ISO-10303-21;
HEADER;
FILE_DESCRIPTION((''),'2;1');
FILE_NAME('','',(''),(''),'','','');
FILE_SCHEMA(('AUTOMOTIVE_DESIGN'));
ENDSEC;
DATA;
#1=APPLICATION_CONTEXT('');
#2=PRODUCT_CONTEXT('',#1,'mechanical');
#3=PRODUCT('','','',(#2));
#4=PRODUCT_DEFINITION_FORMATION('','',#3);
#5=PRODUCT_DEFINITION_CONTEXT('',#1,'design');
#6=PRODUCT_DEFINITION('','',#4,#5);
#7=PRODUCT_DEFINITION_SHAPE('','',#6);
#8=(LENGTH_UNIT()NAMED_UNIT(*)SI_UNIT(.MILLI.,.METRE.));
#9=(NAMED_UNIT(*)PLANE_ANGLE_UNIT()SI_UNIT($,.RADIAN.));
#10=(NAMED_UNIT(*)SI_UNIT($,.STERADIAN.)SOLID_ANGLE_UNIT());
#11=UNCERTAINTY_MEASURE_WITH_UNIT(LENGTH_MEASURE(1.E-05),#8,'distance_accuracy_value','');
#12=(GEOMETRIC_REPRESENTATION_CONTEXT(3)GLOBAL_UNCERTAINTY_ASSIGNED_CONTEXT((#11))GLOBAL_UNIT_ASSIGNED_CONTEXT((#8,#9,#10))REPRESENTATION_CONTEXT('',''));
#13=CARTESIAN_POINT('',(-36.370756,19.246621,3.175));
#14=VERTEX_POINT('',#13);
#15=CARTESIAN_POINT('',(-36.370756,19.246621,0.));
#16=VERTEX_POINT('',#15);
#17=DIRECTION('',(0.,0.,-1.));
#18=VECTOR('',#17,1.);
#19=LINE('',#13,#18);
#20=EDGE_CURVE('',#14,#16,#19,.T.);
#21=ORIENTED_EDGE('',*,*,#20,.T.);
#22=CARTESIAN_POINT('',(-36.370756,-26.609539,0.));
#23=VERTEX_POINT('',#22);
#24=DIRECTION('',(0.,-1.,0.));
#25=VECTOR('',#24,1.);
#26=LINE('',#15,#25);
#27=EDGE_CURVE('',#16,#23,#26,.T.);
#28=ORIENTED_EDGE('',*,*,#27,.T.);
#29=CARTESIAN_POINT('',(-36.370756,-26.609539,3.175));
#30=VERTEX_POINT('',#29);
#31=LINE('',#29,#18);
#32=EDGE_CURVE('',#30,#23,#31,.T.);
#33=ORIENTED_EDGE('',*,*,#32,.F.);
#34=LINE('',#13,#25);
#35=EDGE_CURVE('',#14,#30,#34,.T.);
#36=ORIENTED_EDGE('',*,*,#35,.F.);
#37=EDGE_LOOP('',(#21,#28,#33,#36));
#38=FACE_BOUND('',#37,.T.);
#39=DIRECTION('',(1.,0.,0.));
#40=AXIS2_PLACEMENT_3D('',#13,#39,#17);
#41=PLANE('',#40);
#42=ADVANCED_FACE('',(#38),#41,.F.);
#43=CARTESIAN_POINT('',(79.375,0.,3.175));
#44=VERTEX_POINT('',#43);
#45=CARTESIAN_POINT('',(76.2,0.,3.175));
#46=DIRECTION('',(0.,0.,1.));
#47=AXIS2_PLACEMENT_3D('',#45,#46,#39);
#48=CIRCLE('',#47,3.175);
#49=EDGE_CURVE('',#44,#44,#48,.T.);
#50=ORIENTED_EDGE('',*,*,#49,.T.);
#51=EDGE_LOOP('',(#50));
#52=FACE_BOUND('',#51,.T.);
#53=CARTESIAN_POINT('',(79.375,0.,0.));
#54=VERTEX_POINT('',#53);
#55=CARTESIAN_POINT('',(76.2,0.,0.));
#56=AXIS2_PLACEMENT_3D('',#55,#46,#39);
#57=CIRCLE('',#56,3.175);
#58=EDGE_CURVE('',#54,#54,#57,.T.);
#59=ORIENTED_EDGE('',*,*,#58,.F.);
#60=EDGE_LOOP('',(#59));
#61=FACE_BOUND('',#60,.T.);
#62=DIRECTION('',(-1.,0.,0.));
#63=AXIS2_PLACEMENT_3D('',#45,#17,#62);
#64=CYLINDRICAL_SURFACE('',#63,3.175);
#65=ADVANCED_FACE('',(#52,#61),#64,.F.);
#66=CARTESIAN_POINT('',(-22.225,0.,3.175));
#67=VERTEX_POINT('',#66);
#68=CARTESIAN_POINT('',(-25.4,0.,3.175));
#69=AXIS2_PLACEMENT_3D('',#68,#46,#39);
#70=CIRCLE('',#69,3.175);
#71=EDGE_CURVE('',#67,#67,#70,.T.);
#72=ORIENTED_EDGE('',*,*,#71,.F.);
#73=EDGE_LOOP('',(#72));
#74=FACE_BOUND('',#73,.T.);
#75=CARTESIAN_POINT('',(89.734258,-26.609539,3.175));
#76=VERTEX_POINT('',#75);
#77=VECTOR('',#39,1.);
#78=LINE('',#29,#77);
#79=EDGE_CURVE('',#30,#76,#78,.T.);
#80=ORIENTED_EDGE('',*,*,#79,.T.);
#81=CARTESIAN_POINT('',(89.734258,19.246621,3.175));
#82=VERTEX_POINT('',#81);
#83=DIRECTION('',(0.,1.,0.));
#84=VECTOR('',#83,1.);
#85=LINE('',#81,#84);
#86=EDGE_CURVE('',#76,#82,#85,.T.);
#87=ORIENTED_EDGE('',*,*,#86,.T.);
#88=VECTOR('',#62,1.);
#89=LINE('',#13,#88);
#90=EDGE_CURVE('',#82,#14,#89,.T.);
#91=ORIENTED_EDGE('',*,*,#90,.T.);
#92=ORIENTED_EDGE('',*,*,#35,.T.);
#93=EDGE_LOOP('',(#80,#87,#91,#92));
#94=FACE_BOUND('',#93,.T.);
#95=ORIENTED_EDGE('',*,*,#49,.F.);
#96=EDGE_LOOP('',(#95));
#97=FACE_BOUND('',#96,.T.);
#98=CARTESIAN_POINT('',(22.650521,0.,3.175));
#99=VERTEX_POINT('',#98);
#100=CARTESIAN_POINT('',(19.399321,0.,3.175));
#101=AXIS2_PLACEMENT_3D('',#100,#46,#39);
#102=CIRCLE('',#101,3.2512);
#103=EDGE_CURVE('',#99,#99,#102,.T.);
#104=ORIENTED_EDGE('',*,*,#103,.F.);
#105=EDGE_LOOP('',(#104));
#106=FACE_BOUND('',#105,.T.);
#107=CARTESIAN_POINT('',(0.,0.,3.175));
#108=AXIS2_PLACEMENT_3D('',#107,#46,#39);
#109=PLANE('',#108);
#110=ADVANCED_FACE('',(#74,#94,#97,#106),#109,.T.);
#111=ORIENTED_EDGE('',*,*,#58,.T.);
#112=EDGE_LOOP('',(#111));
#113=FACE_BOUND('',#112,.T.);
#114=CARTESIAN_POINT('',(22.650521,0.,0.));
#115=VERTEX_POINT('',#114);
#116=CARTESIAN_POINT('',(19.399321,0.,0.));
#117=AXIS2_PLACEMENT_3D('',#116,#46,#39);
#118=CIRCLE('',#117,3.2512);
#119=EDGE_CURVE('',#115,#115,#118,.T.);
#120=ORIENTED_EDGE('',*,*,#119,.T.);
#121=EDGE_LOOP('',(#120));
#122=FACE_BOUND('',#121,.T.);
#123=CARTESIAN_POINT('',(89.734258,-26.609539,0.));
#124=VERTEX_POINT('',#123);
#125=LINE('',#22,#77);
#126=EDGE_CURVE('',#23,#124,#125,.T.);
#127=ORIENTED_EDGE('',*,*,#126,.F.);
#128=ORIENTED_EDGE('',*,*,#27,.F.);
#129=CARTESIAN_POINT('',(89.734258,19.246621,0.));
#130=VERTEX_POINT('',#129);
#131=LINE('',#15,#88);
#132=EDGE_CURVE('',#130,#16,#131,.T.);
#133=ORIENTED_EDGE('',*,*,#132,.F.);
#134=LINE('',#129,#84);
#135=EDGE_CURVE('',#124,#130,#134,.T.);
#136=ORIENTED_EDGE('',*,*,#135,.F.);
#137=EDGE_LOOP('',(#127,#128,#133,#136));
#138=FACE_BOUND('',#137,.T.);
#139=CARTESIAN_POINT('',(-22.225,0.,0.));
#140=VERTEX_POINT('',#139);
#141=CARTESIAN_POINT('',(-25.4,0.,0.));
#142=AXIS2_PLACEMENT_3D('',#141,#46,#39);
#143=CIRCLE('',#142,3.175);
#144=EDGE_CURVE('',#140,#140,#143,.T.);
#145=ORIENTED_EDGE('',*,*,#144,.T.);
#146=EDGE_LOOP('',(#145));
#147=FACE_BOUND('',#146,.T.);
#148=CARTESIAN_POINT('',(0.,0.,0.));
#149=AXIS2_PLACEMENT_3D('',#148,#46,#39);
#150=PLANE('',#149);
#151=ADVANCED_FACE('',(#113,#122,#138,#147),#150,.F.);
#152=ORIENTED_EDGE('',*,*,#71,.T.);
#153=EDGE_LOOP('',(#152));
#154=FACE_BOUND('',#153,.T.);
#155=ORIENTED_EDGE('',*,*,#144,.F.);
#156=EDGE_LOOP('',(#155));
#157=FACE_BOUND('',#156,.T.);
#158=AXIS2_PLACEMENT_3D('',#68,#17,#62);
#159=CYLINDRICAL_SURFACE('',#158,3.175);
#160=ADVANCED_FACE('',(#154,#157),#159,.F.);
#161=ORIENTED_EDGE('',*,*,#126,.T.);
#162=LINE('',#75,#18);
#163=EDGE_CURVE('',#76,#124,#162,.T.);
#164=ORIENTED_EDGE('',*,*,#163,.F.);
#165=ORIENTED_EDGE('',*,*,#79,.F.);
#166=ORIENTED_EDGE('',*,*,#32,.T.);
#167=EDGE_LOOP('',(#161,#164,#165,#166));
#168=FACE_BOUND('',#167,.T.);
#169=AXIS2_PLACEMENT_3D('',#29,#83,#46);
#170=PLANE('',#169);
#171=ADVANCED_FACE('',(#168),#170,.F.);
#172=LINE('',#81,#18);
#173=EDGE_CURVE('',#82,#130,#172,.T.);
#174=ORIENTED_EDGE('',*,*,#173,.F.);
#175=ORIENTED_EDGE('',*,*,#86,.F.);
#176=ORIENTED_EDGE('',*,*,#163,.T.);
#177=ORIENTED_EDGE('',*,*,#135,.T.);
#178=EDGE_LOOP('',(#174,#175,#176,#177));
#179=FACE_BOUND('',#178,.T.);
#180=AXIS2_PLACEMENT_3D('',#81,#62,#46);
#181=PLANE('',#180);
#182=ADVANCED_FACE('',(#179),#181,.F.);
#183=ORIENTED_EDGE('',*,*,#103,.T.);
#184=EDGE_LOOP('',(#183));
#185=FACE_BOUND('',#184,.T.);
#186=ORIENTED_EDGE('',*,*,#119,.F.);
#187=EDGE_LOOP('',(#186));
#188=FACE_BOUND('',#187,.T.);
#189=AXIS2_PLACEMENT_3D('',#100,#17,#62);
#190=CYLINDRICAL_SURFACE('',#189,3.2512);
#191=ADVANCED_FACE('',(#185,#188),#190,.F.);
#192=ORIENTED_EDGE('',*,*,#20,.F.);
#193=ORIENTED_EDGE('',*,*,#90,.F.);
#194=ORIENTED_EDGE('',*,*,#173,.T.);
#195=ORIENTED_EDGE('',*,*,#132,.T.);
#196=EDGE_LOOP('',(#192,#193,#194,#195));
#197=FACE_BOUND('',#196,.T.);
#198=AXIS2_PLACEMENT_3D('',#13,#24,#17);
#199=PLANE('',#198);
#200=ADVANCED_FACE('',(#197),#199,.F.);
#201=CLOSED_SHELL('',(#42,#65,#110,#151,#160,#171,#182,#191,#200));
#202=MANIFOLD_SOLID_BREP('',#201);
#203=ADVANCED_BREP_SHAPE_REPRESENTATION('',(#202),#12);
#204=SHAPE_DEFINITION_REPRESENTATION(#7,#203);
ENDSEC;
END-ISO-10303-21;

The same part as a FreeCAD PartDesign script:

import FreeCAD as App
import Part
import Sketcher
Q = App.Units.Quantity

doc = App.newDocument("Part")
params = doc.addObject("Spreadsheet::Sheet", "Params")
for row, (alias, value) in enumerate([
    ("sketch1_diameter", "0.25 in"),
    ("sketch1_diameter2", "0.256 in"),
    ("pad1_length", "0.125 in"),
], start=1):
    params.set(f"A{row}", alias)
    params.set(f"B{row}", "=" + value)
    params.setAlias(f"B{row}", alias)

body = doc.addObject("PartDesign::Body", "Body")

# Sketch on XY plane
sketch1 = doc.addObject("Sketcher::SketchObject", "Sketch")
body.addObject(sketch1)
sketch1.AttachmentSupport = (doc.XY_Plane, [""])
sketch1.MapMode = "FlatFace"
sketch1.addGeometry([
    Part.LineSegment(App.Vector(-36.4, 19.2, 0), App.Vector(-36.4, -26.6, 0)),  # 0
    Part.LineSegment(App.Vector(-36.4, -26.6, 0), App.Vector(89.7, -26.6, 0)),  # 1
    Part.LineSegment(App.Vector(89.7, -26.6, 0), App.Vector(89.7, 19.2, 0)),  # 2
    Part.LineSegment(App.Vector(89.7, 19.2, 0), App.Vector(-36.4, 19.2, 0)),  # 3
    Part.Circle(App.Vector(19.4, 0, 0), App.Vector(0, 0, 1), 3.3),  # 4
    Part.Circle(App.Vector(-25.4, 0, 0), App.Vector(0, 0, 1), 3.2),  # 5
    Part.Circle(App.Vector(76.2, 0, 0), App.Vector(0, 0, 1), 3.2),  # 6
], False)
sketch1.addConstraint([
    Sketcher.Constraint("Coincident", 0, 2, 1, 1),
    Sketcher.Constraint("Coincident", 1, 2, 2, 1),
    Sketcher.Constraint("Coincident", 2, 2, 3, 1),
    Sketcher.Constraint("Coincident", 3, 2, 0, 1),
    Sketcher.Constraint("Vertical", 0),
    Sketcher.Constraint("Horizontal", 1),
    Sketcher.Constraint("Vertical", 2),
    Sketcher.Constraint("Horizontal", 3),
    Sketcher.Constraint("Equal", 5, 6),
    Sketcher.Constraint("PointOnObject", 4, 3, -1),
    Sketcher.Constraint("PointOnObject", 5, 3, -1),
    Sketcher.Constraint("PointOnObject", 6, 3, -1),
    Sketcher.Constraint("Diameter", 5, Q("0.25 in")),
    Sketcher.Constraint("Diameter", 4, Q("0.256 in")),
    Sketcher.Constraint("DistanceX", 5, 3, -1, 1, Q("1 in")),
    Sketcher.Constraint("DistanceX", -1, 1, 6, 3, Q("3 in")),
    Sketcher.Constraint("DistanceY", 0, 2, 0, 1, Q("45.85616 mm")),
    Sketcher.Constraint("DistanceX", 1, 1, 1, 2, Q("126.105014 mm")),
    Sketcher.Constraint("DistanceX", -1, 1, 4, 3, Q("19.399321 mm")),
    Sketcher.Constraint("DistanceY", 0, 2, -1, 1, Q("26.609539 mm")),
    Sketcher.Constraint("DistanceX", -1, 1, 1, 2, Q("89.734258 mm")),
])
sketch1.setExpression("Constraints[12]", "Params.sketch1_diameter")
sketch1.setExpression("Constraints[13]", "Params.sketch1_diameter2")
pad1 = doc.addObject("PartDesign::Pad", "Pad")
body.addObject(pad1)
pad1.Profile = sketch1
pad1.setExpression("Length", "Params.pad1_length")

doc.recompute()
